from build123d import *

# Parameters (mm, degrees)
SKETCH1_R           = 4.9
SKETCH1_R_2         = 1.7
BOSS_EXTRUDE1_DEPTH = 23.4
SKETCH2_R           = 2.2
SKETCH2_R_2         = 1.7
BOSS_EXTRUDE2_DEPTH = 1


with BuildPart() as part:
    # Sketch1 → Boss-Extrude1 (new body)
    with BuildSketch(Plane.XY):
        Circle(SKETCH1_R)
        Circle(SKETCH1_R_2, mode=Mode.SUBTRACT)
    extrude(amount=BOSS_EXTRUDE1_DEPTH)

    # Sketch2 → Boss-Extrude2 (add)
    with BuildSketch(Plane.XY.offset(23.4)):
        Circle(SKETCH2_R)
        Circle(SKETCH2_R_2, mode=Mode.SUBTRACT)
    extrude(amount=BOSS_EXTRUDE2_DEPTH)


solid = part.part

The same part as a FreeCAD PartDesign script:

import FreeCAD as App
import Part
import Sketcher
from FreeCAD import Vector

doc = App.newDocument("Part")
params = doc.addObject("Spreadsheet::Sheet", "Params")
for row, (alias, value) in enumerate([
    ("sketch1_diameter", "9.8 mm"),
    ("sketch1_diameter2", "3.4 mm"),
    ("pad1_length", "23.4 mm"),
    ("sketch2_diameter", "4.4 mm"),
    ("sketch2_diameter2", "3.4 mm"),
    ("pad2_length", "1 mm"),
], start=1):
    params.set(f"A{row}", alias)
    params.set(f"B{row}", "=" + value)
    params.setAlias(f"B{row}", alias)

body = doc.addObject("PartDesign::Body", "Body")

sketch1 = body.newObject("Sketcher::SketchObject", "Sketch")
sketch1.AttachmentSupport = (doc.getObject("XY_Plane"), [""])
sketch1.MapMode = "FlatFace"
sketch1.addGeometry(Part.Circle(Vector(0, 0, 0), Vector(0, 0, 1), 4.9), False)
sketch1.addGeometry(Part.Circle(Vector(0, 0, 0), Vector(0, 0, 1), 1.7), False)
sketch1.addConstraint(Sketcher.Constraint("Coincident", 0, 3, -1, 1))
sketch1.addConstraint(Sketcher.Constraint("Coincident", 1, 3, -1, 1))
sketch1.addConstraint(Sketcher.Constraint("Diameter", 0, 9.8))
sketch1.addConstraint(Sketcher.Constraint("Diameter", 1, 3.4))
sketch1.setExpression("Constraints[2]", "Params.sketch1_diameter")
sketch1.setExpression("Constraints[3]", "Params.sketch1_diameter2")
pad1 = body.newObject("PartDesign::Pad", "Pad")
pad1.Profile = sketch1
pad1.setExpression("Length", "Params.pad1_length")

sketch2 = body.newObject("Sketcher::SketchObject", "Sketch001")
sketch2.AttachmentSupport = (doc.getObject("XY_Plane"), [""])
sketch2.MapMode = "FlatFace"
sketch2.AttachmentOffset = App.Placement(Vector(0, 0, 23.4), App.Rotation())
sketch2.addGeometry(Part.Circle(Vector(0, 0, 0), Vector(0, 0, 1), 2.2), False)
sketch2.addGeometry(Part.Circle(Vector(0, 0, 0), Vector(0, 0, 1), 1.7), False)
sketch2.addConstraint(Sketcher.Constraint("Coincident", 0, 3, -1, 1))
sketch2.addConstraint(Sketcher.Constraint("Coincident", 1, 3, -1, 1))
sketch2.addConstraint(Sketcher.Constraint("Diameter", 0, 4.4))
sketch2.addConstraint(Sketcher.Constraint("Diameter", 1, 3.4))
sketch2.setExpression("Constraints[2]", "Params.sketch2_diameter")
sketch2.setExpression("Constraints[3]", "Params.sketch2_diameter2")
pad2 = body.newObject("PartDesign::Pad", "Pad001")
pad2.Profile = sketch2
pad2.setExpression("Length", "Params.pad2_length")

doc.recompute()
